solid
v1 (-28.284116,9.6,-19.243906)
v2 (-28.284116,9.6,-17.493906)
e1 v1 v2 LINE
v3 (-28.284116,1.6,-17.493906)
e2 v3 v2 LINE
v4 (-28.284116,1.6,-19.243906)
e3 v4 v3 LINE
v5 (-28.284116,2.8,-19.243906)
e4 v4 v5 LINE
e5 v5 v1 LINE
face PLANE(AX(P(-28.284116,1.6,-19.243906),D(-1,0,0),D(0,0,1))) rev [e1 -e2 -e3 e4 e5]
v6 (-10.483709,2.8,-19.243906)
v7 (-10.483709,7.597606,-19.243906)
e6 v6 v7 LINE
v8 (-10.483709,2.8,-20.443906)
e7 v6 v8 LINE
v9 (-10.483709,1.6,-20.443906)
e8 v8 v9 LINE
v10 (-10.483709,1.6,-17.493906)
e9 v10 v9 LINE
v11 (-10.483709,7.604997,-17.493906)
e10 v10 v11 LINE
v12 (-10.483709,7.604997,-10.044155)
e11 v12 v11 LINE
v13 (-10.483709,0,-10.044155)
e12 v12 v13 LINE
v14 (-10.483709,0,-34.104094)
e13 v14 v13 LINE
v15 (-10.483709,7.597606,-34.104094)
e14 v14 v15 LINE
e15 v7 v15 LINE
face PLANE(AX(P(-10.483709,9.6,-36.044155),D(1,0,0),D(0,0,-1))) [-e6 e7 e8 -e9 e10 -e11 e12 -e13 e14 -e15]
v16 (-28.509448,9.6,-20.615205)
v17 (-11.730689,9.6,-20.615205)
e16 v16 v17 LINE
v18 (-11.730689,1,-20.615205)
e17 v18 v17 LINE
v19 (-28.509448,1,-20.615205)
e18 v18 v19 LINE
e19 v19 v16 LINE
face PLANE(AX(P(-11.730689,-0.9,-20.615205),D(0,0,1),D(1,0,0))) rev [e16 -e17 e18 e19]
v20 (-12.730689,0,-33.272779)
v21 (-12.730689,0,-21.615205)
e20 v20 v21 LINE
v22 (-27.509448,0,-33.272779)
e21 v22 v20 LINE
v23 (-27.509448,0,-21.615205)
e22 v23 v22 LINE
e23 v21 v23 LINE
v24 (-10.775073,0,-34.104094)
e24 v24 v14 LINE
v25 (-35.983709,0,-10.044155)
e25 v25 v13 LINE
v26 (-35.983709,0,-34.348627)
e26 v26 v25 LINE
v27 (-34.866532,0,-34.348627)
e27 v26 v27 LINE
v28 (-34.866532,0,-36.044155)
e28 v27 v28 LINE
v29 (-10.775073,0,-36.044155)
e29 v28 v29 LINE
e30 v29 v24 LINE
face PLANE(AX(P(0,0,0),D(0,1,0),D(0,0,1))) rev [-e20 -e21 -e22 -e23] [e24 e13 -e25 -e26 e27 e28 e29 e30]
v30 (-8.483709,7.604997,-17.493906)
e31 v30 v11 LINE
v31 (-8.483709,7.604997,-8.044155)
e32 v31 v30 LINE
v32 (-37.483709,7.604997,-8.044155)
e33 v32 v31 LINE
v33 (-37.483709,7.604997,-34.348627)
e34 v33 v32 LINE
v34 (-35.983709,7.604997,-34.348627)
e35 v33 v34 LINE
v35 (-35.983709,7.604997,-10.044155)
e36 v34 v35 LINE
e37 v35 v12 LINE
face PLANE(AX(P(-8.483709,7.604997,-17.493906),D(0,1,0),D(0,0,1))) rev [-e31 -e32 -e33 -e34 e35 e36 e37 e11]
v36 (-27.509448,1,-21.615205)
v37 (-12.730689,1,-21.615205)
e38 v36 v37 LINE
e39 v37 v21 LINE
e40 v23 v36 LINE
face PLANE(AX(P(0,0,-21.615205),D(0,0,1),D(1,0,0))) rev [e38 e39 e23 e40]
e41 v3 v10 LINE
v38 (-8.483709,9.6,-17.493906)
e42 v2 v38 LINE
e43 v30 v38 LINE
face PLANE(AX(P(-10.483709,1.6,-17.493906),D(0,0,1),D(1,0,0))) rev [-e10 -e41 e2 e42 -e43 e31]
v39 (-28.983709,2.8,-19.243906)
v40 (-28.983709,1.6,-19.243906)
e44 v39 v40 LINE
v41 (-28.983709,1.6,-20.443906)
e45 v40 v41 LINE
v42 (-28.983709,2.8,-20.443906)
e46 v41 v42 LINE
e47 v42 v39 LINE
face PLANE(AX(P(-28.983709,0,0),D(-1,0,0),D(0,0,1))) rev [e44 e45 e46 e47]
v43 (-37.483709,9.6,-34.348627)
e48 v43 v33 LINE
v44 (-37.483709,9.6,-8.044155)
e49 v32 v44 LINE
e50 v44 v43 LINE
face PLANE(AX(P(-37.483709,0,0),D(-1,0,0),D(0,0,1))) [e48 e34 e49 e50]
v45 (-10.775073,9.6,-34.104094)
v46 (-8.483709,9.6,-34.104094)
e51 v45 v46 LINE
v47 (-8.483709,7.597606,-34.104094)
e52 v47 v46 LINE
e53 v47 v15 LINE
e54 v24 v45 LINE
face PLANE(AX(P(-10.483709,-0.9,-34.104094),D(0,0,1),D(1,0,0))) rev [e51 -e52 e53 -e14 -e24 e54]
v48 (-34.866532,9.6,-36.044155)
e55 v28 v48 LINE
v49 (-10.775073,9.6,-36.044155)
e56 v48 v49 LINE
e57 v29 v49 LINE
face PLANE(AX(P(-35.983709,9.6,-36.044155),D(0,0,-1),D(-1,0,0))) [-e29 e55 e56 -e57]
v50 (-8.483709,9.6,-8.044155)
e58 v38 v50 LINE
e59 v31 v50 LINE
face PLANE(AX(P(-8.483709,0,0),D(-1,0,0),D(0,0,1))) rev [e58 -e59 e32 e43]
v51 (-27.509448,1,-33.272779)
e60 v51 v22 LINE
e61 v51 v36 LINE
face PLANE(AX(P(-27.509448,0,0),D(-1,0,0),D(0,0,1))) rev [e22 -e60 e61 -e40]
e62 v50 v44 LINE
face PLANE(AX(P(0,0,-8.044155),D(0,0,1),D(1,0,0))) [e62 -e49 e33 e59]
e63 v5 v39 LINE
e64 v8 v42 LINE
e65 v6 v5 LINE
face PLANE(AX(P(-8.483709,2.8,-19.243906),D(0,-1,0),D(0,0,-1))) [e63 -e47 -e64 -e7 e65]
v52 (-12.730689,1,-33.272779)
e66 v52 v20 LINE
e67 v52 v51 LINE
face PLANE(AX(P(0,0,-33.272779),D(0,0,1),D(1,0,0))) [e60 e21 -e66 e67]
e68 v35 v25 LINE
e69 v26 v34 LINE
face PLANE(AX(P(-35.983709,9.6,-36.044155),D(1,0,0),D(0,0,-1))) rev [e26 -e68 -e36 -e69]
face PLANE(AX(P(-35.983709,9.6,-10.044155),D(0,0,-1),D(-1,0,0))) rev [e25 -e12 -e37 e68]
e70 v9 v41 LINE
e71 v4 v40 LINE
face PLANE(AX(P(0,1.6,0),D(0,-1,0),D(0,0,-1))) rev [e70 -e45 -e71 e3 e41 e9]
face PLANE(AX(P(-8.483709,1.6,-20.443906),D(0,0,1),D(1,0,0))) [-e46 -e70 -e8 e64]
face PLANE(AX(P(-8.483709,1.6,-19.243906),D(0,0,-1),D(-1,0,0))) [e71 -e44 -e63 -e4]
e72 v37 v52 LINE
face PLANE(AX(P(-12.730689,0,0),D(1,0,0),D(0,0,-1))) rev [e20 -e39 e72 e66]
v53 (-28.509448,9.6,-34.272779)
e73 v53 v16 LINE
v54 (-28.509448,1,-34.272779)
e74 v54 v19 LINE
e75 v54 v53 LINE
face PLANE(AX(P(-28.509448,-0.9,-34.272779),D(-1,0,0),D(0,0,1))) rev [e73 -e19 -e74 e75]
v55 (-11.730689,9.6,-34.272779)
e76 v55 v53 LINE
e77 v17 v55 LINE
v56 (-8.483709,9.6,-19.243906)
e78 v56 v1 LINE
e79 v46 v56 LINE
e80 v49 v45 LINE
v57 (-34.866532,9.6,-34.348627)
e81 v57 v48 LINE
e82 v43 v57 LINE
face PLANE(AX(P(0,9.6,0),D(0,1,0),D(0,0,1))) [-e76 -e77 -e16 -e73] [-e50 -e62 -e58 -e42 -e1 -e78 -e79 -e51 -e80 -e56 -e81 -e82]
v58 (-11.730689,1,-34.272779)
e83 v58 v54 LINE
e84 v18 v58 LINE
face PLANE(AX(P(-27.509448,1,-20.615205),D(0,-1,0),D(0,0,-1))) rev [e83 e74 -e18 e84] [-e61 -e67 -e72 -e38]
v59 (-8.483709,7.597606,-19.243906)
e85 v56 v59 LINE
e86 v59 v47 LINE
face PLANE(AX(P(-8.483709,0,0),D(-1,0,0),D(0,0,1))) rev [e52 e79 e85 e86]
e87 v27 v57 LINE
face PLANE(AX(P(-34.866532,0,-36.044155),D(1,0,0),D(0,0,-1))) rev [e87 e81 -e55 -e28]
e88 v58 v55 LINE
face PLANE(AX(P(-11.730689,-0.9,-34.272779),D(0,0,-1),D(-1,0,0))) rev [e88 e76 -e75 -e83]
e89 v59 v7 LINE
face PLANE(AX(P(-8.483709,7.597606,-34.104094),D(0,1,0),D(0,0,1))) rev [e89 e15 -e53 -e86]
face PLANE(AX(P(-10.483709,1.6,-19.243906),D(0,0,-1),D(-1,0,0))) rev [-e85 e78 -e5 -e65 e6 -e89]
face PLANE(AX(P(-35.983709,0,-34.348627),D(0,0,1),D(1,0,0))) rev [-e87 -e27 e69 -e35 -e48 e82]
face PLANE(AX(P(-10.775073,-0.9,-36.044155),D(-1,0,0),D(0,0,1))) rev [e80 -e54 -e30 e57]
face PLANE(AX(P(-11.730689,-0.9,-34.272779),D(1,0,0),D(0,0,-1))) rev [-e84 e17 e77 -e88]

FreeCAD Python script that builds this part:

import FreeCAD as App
import Part
import Sketcher


def add_polygon(sketch, points):
    """Adds a closed chain of lines whose ends are joined by coincident constraints."""
    first, n = sketch.GeometryCount, len(points)
    for a, b in zip(points, points[1:] + points[:1]):
        sketch.addGeometry(Part.LineSegment(App.Vector(*a, 0), App.Vector(*b, 0)), False)
    for i in range(n):
        sketch.addConstraint(Sketcher.Constraint("Coincident", first + i, 2, first + (i + 1) % n, 1))

doc = App.newDocument("Part")
body = doc.addObject("PartDesign::Body", "Body")

# Sketch on XZ plane
sketch1 = body.newObject("Sketcher::SketchObject", "Sketch")
sketch1.AttachmentSupport = (doc.getObject("XZ_Plane"), [""])
sketch1.MapMode = "FlatFace"
add_polygon(sketch1, [(-36, -36), (-36, -10), (-10, -10), (-10, -36)])  # lines 0-3
sketch1.addConstraint([
    Sketcher.Constraint("Vertical", 0),
    Sketcher.Constraint("Horizontal", 1),
    Sketcher.Constraint("Vertical", 2),
    Sketcher.Constraint("Horizontal", 3),
    Sketcher.Constraint("DistanceY", 0, 1, 0, 2, 26.0),
    Sketcher.Constraint("DistanceX", 1, 1, 1, 2, 25.5),
    Sketcher.Constraint("DistanceX", 0, 2, -1, 1, 35.983709),
    Sketcher.Constraint("DistanceY", 0, 2, -1, 1, 10.044155),
])
pad1 = body.newObject("PartDesign::Pad", "Pad")
pad1.Profile = sketch1
pad1.Length = 9.6
pad1.Reversed = True

# Sketch on XZ plane
sketch2 = body.newObject("Sketcher::SketchObject", "Sketch001")
sketch2.AttachmentSupport = (doc.getObject("XZ_Plane"), [""])
sketch2.MapMode = "FlatFace"
sketch2.AttachmentOffset = App.Placement(App.Vector(0, 0, -9.6), App.Rotation())
add_polygon(sketch2, [(-36, -36), (-36, -34.3), (-34.9, -34.3), (-34.9, -36)])  # lines 0-3
sketch2.addConstraint([
    Sketcher.Constraint("Vertical", 0),
    Sketcher.Constraint("Horizontal", 1),
    Sketcher.Constraint("Vertical", 2),
    Sketcher.Constraint("Horizontal", 3),
    Sketcher.Constraint("DistanceX", 1, 1, 1, 2, 1.117177),
    Sketcher.Constraint("DistanceY", 0, 1, 0, 2, 1.695528),
    Sketcher.Constraint("DistanceX", 0, 2, -1, 1, 35.983709),
    Sketcher.Constraint("DistanceY", 0, 2, -1, 1, 34.348627),
])
pocket1 = body.newObject("PartDesign::Pocket", "Pocket")
pocket1.Profile = sketch2
pocket1.Length = 9.6
pocket1.Reversed = True

# Sketch on XZ plane
sketch3 = body.newObject("Sketcher::SketchObject", "Sketch002")
sketch3.AttachmentSupport = (doc.getObject("XZ_Plane"), [""])
sketch3.MapMode = "FlatFace"
sketch3.AttachmentOffset = App.Placement(App.Vector(0, 0, -9.6), App.Rotation())
add_polygon(sketch3, [(-28.3, -19.2), (-28.3, -17.5), (-10.5, -17.5), (-10.5, -19.2)])  # lines 0-3
sketch3.addConstraint([
    Sketcher.Constraint("Vertical", 0),
    Sketcher.Constraint("Horizontal", 1),
    Sketcher.Constraint("Vertical", 2),
    Sketcher.Constraint("Horizontal", 3),
    Sketcher.Constraint("DistanceY", 0, 1, 0, 2, 1.75),
    Sketcher.Constraint("DistanceX", 1, 1, 1, 2, 17.800408),
    Sketcher.Constraint("DistanceX", 1, 2, -1, 1, 10.483709),
    Sketcher.Constraint("DistanceY", 0, 2, -1, 1, 17.493906),
])
pocket2 = body.newObject("PartDesign::Pocket", "Pocket001")
pocket2.Profile = sketch3
pocket2.Length = 8
pocket2.Reversed = True

# Sketch on XZ plane
sketch4 = body.newObject("Sketcher::SketchObject", "Sketch003")
sketch4.AttachmentSupport = (doc.getObject("XZ_Plane"), [""])
sketch4.MapMode = "FlatFace"
sketch4.AttachmentOffset = App.Placement(App.Vector(0, 0, -9.6), App.Rotation())
add_polygon(sketch4, [(-29, -34), (-29, -21), (-12, -21), (-12, -34)])  # lines 0-3
sketch4.addConstraint([
    Sketcher.Constraint("Vertical", 0),
    Sketcher.Constraint("Horizontal", 1),
    Sketcher.Constraint("Vertical", 2),
    Sketcher.Constraint("Horizontal", 3),
    Sketcher.Constraint("DistanceX", 1, 1, 1, 2, 16.778759),
    Sketcher.Constraint("DistanceY", 0, 1, 0, 2, 13.657573),
    Sketcher.Constraint("DistanceX", 0, 2, -1, 1, 28.509448),
    Sketcher.Constraint("DistanceY", 2, 2, -1, 1, 34.272779),
])
pocket3 = body.newObject("PartDesign::Pocket", "Pocket002")
pocket3.Profile = sketch4
pocket3.Length = 10.5
pocket3.Reversed = True

# Sketch on XZ plane
sketch5 = body.newObject("Sketcher::SketchObject", "Sketch004")
sketch5.AttachmentSupport = (doc.getObject("XZ_Plane"), [""])
sketch5.MapMode = "FlatFace"
sketch5.AttachmentOffset = App.Placement(App.Vector(0, 0, -9.6), App.Rotation())
add_polygon(sketch5, [(-10.78, -36.04), (-10.78, -34.1), (-10.48, -34.1), (-10.48, -36.04)])  # lines 0-3
sketch5.addConstraint([
    Sketcher.Constraint("Vertical", 0),
    Sketcher.Constraint("Horizontal", 1),
    Sketcher.Constraint("Vertical", 2),
    Sketcher.Constraint("Horizontal", 3),
    Sketcher.Constraint("DistanceY", 0, 1, 0, 2, 1.940062),
    Sketcher.Constraint("DistanceX", 1, 1, 1, 2, 0.291364),
    Sketcher.Constraint("DistanceX", 1, 2, -1, 1, 10.483709),
    Sketcher.Constraint("DistanceY", 0, 2, -1, 1, 34.104094),
])
pocket4 = body.newObject("PartDesign::Pocket", "Pocket003")
pocket4.Profile = sketch5
pocket4.Length = 10.5
pocket4.Reversed = True

# Sketch on YZ plane
sketch6 = body.newObject("Sketcher::SketchObject", "Sketch005")
sketch6.AttachmentSupport = (doc.getObject("YZ_Plane"), [""])
sketch6.MapMode = "FlatFace"
sketch6.AttachmentOffset = App.Placement(App.Vector(0, 0, -10.483709), App.Rotation())
add_polygon(sketch6, [(9.6, -19.2), (7.6, -19.2), (7.6, -34.1), (9.6, -34.1)])  # lines 0-3
sketch6.addConstraint([
    Sketcher.Constraint("Horizontal", 0),
    Sketcher.Constraint("Vertical", 1),
    Sketcher.Constraint("Horizontal", 2),
    Sketcher.Constraint("Vertical", 3),
    Sketcher.Constraint("DistanceX", -1, 1, 2, 2, 9.6),
    Sketcher.Constraint("DistanceX", 0, 2, 0, 1, 2.002394),
    Sketcher.Constraint("DistanceY", 1, 2, 1, 1, 14.860188),
    Sketcher.Constraint("DistanceY", 0, 2, -1, 1, 19.243906),
])
pad2 = body.newObject("PartDesign::Pad", "Pad001")
pad2.Profile = sketch6
pad2.Length = 2

# Sketch on YZ plane
sketch7 = body.newObject("Sketcher::SketchObject", "Sketch006")
sketch7.AttachmentSupport = (doc.getObject("YZ_Plane"), [""])
sketch7.MapMode = "FlatFace"
sketch7.AttachmentOffset = App.Placement(App.Vector(0, 0, -10.483709), App.Rotation())
add_polygon(sketch7, [(9.6, -10), (7.6, -10), (7.6, -17.5), (9.6, -17.5)])  # lines 0-3
sketch7.addConstraint([
    Sketcher.Constraint("Horizontal", 0),
    Sketcher.Constraint("Vertical", 1),
    Sketcher.Constraint("Horizontal", 2),
    Sketcher.Constraint("Vertical", 3),
    Sketcher.Constraint("DistanceX", -1, 1, 2, 2, 9.6),
    Sketcher.Constraint("DistanceY", 1, 2, 1, 1, 7.449751),
    Sketcher.Constraint("DistanceX", 0, 2, 0, 1, 1.995003),
    Sketcher.Constraint("DistanceY", 0, 2, -1, 1, 10.044155),
])
pad3 = body.newObject("PartDesign::Pad", "Pad002")
pad3.Profile = sketch7
pad3.Length = 2

# Sketch on XY plane
sketch8 = body.newObject("Sketcher::SketchObject", "Sketch007")
sketch8.AttachmentSupport = (doc.getObject("XY_Plane"), [""])
sketch8.MapMode = "FlatFace"
sketch8.AttachmentOffset = App.Placement(App.Vector(0, 0, -10.044155), App.Rotation())
add_polygon(sketch8, [(-36, 9.6), (-36, 7.6), (-8.5, 7.6), (-8.5, 9.6)])  # lines 0-3
sketch8.addConstraint([
    Sketcher.Constraint("Vertical", 0),
    Sketcher.Constraint("Horizontal", 1),
    Sketcher.Constraint("Vertical", 2),
    Sketcher.Constraint("Horizontal", 3),
    Sketcher.Constraint("DistanceX", 1, 1, 1, 2, 27.5),
    Sketcher.Constraint("DistanceY", -1, 1, 2, 2, 9.6),
    Sketcher.Constraint("DistanceY", 0, 2, 0, 1, 1.995003),
    Sketcher.Constraint("DistanceX", 0, 2, -1, 1, 35.983709),
])
pad4 = body.newObject("PartDesign::Pad", "Pad003")
pad4.Profile = sketch8
pad4.Length = 2

# Sketch on YZ plane
sketch9 = body.newObject("Sketcher::SketchObject", "Sketch008")
sketch9.AttachmentSupport = (doc.getObject("YZ_Plane"), [""])
sketch9.MapMode = "FlatFace"
sketch9.AttachmentOffset = App.Placement(App.Vector(0, 0, -35.983709), App.Rotation())
add_polygon(sketch9, [(9.6, -34.3), (7.6, -34.3), (7.6, -8), (9.6, -8)])  # lines 0-3
sketch9.addConstraint([
    Sketcher.Constraint("Horizontal", 0),
    Sketcher.Constraint("Vertical", 1),
    Sketcher.Constraint("Horizontal", 2),
    Sketcher.Constraint("Vertical", 3),
    Sketcher.Constraint("DistanceX", -1, 1, 2, 2, 9.6),
    Sketcher.Constraint("DistanceX", 0, 2, 0, 1, 1.995003),
    Sketcher.Constraint("DistanceY", 1, 1, 1, 2, 26.304472),
    Sketcher.Constraint("DistanceY", 0, 2, -1, 1, 34.348627),
])
pad5 = body.newObject("PartDesign::Pad", "Pad004")
pad5.Profile = sketch9
pad5.Length = 1.5
pad5.Reversed = True

# Sketch on YZ plane
sketch10 = body.newObject("Sketcher::SketchObject", "Sketch009")
sketch10.AttachmentSupport = (doc.getObject("YZ_Plane"), [""])
sketch10.MapMode = "FlatFace"
sketch10.AttachmentOffset = App.Placement(App.Vector(0, 0, -10.483709), App.Rotation())
add_polygon(sketch10, [(2.8, -19.2), (1.6, -19.2), (1.6, -20.4), (2.8, -20.4)])  # lines 0-3
sketch10.addConstraint([
    Sketcher.Constraint("Horizontal", 0),
    Sketcher.Constraint("Vertical", 1),
    Sketcher.Constraint("Horizontal", 2),
    Sketcher.Constraint("Vertical", 3),
    Sketcher.Constraint("Equal", 2, 1),
    Sketcher.Constraint("DistanceX", 0, 2, 0, 1, 1.2),
    Sketcher.Constraint("DistanceX", -1, 1, 0, 2, 1.6),
    Sketcher.Constraint("DistanceY", 0, 2, -1, 1, 19.243906),
])
pocket5 = body.newObject("PartDesign::Pocket", "Pocket004")
pocket5.Profile = sketch10
pocket5.Type = "TwoLengths"
pocket5.Length = 3
pocket5.Length2 = 18.5
pocket5.Reversed = True

# Sketch on YZ plane
sketch11 = body.newObject("Sketcher::SketchObject", "Sketch010")
sketch11.AttachmentSupport = (doc.getObject("YZ_Plane"), [""])
sketch11.MapMode = "FlatFace"
sketch11.AttachmentOffset = App.Placement(App.Vector(0, 0, -28.509448), App.Rotation())
add_polygon(sketch11, [(1, -20.6), (0, -20.6), (0, -34.3), (1, -34.3)])  # lines 0-3
sketch11.addConstraint([
    Sketcher.Constraint("Horizontal", 0),
    Sketcher.Constraint("Vertical", 1),
    Sketcher.Constraint("Horizontal", 2),
    Sketcher.Constraint("Vertical", 3),
    Sketcher.Constraint("PointOnObject", 0, 2, -2),
    Sketcher.Constraint("DistanceX", 0, 2, 0, 1, 1.0),
    Sketcher.Constraint("DistanceY", 1, 2, 1, 1, 13.657573),
    Sketcher.Constraint("DistanceY", 1, 2, -1, 1, 34.272779),
])
pad6 = body.newObject("PartDesign::Pad", "Pad005")
pad6.Profile = sketch11
pad6.Length = 1

# Sketch on XY plane
sketch12 = body.newObject("Sketcher::SketchObject", "Sketch011")
sketch12.AttachmentSupport = (doc.getObject("XY_Plane"), [""])
sketch12.MapMode = "FlatFace"
sketch12.AttachmentOffset = App.Placement(App.Vector(0, 0, -34.272779), App.Rotation())
add_polygon(sketch12, [(-27.5, 1), (-27.5, 0), (-11.7, 0), (-11.7, 1)])  # lines 0-3
sketch12.addConstraint([
    Sketcher.Constraint("Vertical", 0),
    Sketcher.Constraint("Horizontal", 1),
    Sketcher.Constraint("Vertical", 2),
    Sketcher.Constraint("Horizontal", 3),
    Sketcher.Constraint("PointOnObject", 0, 2, -1),
    Sketcher.Constraint("DistanceY", 0, 2, 0, 1, 1.0),
    Sketcher.Constraint("DistanceX", 1, 1, 1, 2, 15.778759),
    Sketcher.Constraint("DistanceX", 0, 2, -1, 1, 27.509448),
])
pad7 = body.newObject("PartDesign::Pad", "Pad006")
pad7.Profile = sketch12
pad7.Length = 1

# Sketch on YZ plane
sketch13 = body.newObject("Sketcher::SketchObject", "Sketch012")
sketch13.AttachmentSupport = (doc.getObject("YZ_Plane"), [""])
sketch13.MapMode = "FlatFace"
sketch13.AttachmentOffset = App.Placement(App.Vector(0, 0, -11.730689), App.Rotation())
add_polygon(sketch13, [(1, -33.3), (0, -33.3), (0, -20.6), (1, -20.6)])  # lines 0-3
sketch13.addConstraint([
    Sketcher.Constraint("Horizontal", 0),
    Sketcher.Constraint("Vertical", 1),
    Sketcher.Constraint("Horizontal", 2),
    Sketcher.Constraint("Vertical", 3),
    Sketcher.Constraint("PointOnObject", 0, 2, -2),
    Sketcher.Constraint("DistanceX", 0, 2, 0, 1, 1.0),
    Sketcher.Constraint("DistanceY", 1, 1, 1, 2, 12.657573),
    Sketcher.Constraint("DistanceY", 0, 2, -1, 1, 33.272779),
])
pad8 = body.newObject("PartDesign::Pad", "Pad007")
pad8.Profile = sketch13
pad8.Length = 1
pad8.Reversed = True

# Sketch on XY plane
sketch14 = body.newObject("Sketcher::SketchObject", "Sketch013")
sketch14.AttachmentSupport = (doc.getObject("XY_Plane"), [""])
sketch14.MapMode = "FlatFace"
sketch14.AttachmentOffset = App.Placement(App.Vector(0, 0, -20.615205), App.Rotation())
add_polygon(sketch14, [(-12.7, 1), (-12.7, 0), (-27.5, 0), (-27.5, 1)])  # lines 0-3
sketch14.addConstraint([
    Sketcher.Constraint("Vertical", 0),
    Sketcher.Constraint("Horizontal", 1),
    Sketcher.Constraint("Vertical", 2),
    Sketcher.Constraint("Horizontal", 3),
    Sketcher.Constraint("PointOnObject", 0, 2, -1),
    Sketcher.Constraint("DistanceY", 0, 2, 0, 1, 1.0),
    Sketcher.Constraint("DistanceX", 1, 2, 1, 1, 14.778759),
    Sketcher.Constraint("DistanceX", 0, 2, -1, 1, 12.730689),
])
pad9 = body.newObject("PartDesign::Pad", "Pad008")
pad9.Profile = sketch14
pad9.Length = 1
pad9.Reversed = True

doc.recompute()
